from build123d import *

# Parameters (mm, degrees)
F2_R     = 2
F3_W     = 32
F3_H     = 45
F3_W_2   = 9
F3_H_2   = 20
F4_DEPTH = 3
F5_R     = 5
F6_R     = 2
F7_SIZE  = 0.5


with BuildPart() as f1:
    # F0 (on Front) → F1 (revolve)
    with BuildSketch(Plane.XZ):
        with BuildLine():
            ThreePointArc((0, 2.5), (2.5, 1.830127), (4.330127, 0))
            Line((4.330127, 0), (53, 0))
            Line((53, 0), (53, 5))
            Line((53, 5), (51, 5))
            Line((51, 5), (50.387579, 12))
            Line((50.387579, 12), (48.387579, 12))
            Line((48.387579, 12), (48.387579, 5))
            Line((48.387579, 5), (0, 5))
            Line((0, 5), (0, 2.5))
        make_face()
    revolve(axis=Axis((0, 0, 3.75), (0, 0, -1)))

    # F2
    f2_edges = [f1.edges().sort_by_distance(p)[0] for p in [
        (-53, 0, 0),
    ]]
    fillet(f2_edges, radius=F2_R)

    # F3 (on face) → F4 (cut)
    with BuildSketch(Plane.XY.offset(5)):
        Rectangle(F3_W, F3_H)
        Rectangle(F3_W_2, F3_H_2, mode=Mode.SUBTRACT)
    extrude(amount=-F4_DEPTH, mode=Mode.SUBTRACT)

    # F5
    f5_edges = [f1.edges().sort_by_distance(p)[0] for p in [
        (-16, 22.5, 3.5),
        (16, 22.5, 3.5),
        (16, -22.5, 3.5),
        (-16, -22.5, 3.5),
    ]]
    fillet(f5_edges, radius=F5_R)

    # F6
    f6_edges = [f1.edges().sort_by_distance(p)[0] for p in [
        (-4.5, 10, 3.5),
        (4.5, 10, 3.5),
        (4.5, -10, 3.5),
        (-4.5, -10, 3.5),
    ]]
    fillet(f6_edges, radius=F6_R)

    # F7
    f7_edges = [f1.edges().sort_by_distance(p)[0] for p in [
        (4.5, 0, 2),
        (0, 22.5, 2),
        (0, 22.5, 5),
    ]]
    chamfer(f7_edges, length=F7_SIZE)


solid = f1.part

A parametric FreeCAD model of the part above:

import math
import FreeCAD as App
import Part
import Sketcher
Q = App.Units.Quantity


def edges_at(feature, points):
    """Names of the edges that pass closest to the given points."""
    edges = feature.Shape.Edges
    near = lambda p: min(range(len(edges)), key=lambda i: edges[i].distToShape(Part.Vertex(*p))[0])
    return sorted({f"Edge{near(p) + 1}" for p in points})

doc = App.newDocument("Part")
params = doc.addObject("Spreadsheet::Sheet", "Params")
for row, (alias, value) in enumerate([
    ("sketch1_radius", "5 mm"),
    ("sketch1_width", "2 mm"),
    ("sketch1_height", "5 mm"),
    ("sketch1_height2", "7 mm"),
    ("sketch1_height3", "2.5 mm"),
    ("revolution_angle", "360 deg"),
    ("fillet_radius", "2 mm"),
    ("sketch2_width", "32 mm"),
    ("sketch2_width2", "9 mm"),
    ("sketch2_height", "45 mm"),
    ("sketch2_height2", "20 mm"),
    ("pocket1_length", "3 mm"),
    ("fillet2_radius", "5 mm"),
    ("fillet3_radius", "2 mm"),
    ("chamfer_size", "0.5 mm"),
], start=1):
    params.set(f"A{row}", alias)
    params.set(f"B{row}", "=" + value)
    params.setAlias(f"B{row}", alias)

body = doc.addObject("PartDesign::Body", "Body")

# Sketch on XZ plane
sketch1 = body.newObject("Sketcher::SketchObject", "Sketch")
sketch1.AttachmentSupport = (doc.getObject("XZ_Plane"), [""])
sketch1.MapMode = "FlatFace"
sketch1.addGeometry([
    Part.ArcOfCircle(Part.Circle(App.Vector(0, -2.5, 0), App.Vector(0, 0, 1), 5), math.radians(30), math.radians(89.999999)),  # 0
    Part.LineSegment(App.Vector(4.330127, 0, 0), App.Vector(53, 0, 0)),  # 1
    Part.LineSegment(App.Vector(53, 0, 0), App.Vector(53, 5, 0)),  # 2
    Part.LineSegment(App.Vector(53, 5, 0), App.Vector(51, 5, 0)),  # 3
    Part.LineSegment(App.Vector(51, 5, 0), App.Vector(50.387579, 12, 0)),  # 4
    Part.LineSegment(App.Vector(50.387579, 12, 0), App.Vector(48.387579, 12, 0)),  # 5
    Part.LineSegment(App.Vector(48.387579, 12, 0), App.Vector(48.387579, 5, 0)),  # 6
    Part.LineSegment(App.Vector(48.387579, 5, 0), App.Vector(0, 5, 0)),  # 7
    Part.LineSegment(App.Vector(0, 5, 0), App.Vector(0, 2.5, 0)),  # 8
], False)
sketch1.addConstraint([
    Sketcher.Constraint("Coincident", 0, 1, 1, 1),
    Sketcher.Constraint("Coincident", 1, 2, 2, 1),
    Sketcher.Constraint("Coincident", 2, 2, 3, 1),
    Sketcher.Constraint("Coincident", 3, 2, 4, 1),
    Sketcher.Constraint("Coincident", 4, 2, 5, 1),
    Sketcher.Constraint("Coincident", 5, 2, 6, 1),
    Sketcher.Constraint("Coincident", 6, 2, 7, 1),
    Sketcher.Constraint("Coincident", 7, 2, 8, 1),
    Sketcher.Constraint("Coincident", 8, 2, 0, 2),
    Sketcher.Constraint("Horizontal", 1),
    Sketcher.Constraint("Vertical", 2),
    Sketcher.Constraint("Horizontal", 3),
    Sketcher.Constraint("Horizontal", 5),
    Sketcher.Constraint("Vertical", 6),
    Sketcher.Constraint("Horizontal", 7),
    Sketcher.Constraint("Vertical", 8),
    Sketcher.Constraint("PointOnObject", 0, 3, -2),
    Sketcher.Constraint("PointOnObject", 0, 1, -1),
    Sketcher.Constraint("PointOnObject", 7, 2, -2),
    Sketcher.Constraint("Horizontal", 3, 2, 6, 2),
    Sketcher.Constraint("Equal", 3, 5),
    Sketcher.Constraint("Radius", 0, 5.0),
    Sketcher.Constraint("DistanceX", 3, 2, 3, 1, 2.0),
    Sketcher.Constraint("DistanceY", 2, 1, 2, 2, 5.0),
    Sketcher.Constraint("DistanceY", 6, 2, 6, 1, 7.0),
    Sketcher.Constraint("Angle", 4, Q("95.000003 deg")),
    Sketcher.Constraint("DistanceY", 8, 2, 8, 1, 2.5),
    Sketcher.Constraint("DistanceX", -1, 1, 1, 2, 53.0),
])
sketch1.setExpression("Constraints[21]", "Params.sketch1_radius")
sketch1.setExpression("Constraints[22]", "Params.sketch1_width")
sketch1.setExpression("Constraints[23]", "Params.sketch1_height")
sketch1.setExpression("Constraints[24]", "Params.sketch1_height2")
sketch1.setExpression("Constraints[26]", "Params.sketch1_height3")
revolution = body.newObject("PartDesign::Revolution", "Revolution")
revolution.Profile = sketch1
revolution.ReferenceAxis = (sketch1, ["V_Axis"])
revolution.setExpression("Angle", "Params.revolution_angle")
doc.recompute()

fillet = body.newObject("PartDesign::Fillet", "Fillet")
fillet.Base = (revolution, edges_at(revolution, [(-53, 0, 0)]))
fillet.setExpression("Radius", "Params.fillet_radius")

# Sketch on XY plane
sketch2 = body.newObject("Sketcher::SketchObject", "Sketch001")
sketch2.AttachmentSupport = (doc.getObject("XY_Plane"), [""])
sketch2.MapMode = "FlatFace"
sketch2.AttachmentOffset = App.Placement(App.Vector(0, 0, 5), App.Rotation())
sketch2.addGeometry([
    Part.LineSegment(App.Vector(-16, 22.5, 0), App.Vector(-16, -22.5, 0)),  # 0
    Part.LineSegment(App.Vector(-16, -22.5, 0), App.Vector(16, -22.5, 0)),  # 1
    Part.LineSegment(App.Vector(16, -22.5, 0), App.Vector(16, 22.5, 0)),  # 2
    Part.LineSegment(App.Vector(16, 22.5, 0), App.Vector(-16, 22.5, 0)),  # 3
    Part.LineSegment(App.Vector(4.5, -10, 0), App.Vector(-4.5, -10, 0)),  # 4
    Part.LineSegment(App.Vector(-4.5, -10, 0), App.Vector(-4.5, 10, 0)),  # 5
    Part.LineSegment(App.Vector(-4.5, 10, 0), App.Vector(4.5, 10, 0)),  # 6
    Part.LineSegment(App.Vector(4.5, 10, 0), App.Vector(4.5, -10, 0)),  # 7
], False)
sketch2.addConstraint([
    Sketcher.Constraint("Coincident", 0, 2, 1, 1),
    Sketcher.Constraint("Coincident", 1, 2, 2, 1),
    Sketcher.Constraint("Coincident", 2, 2, 3, 1),
    Sketcher.Constraint("Coincident", 3, 2, 0, 1),
    Sketcher.Constraint("Coincident", 4, 2, 5, 1),
    Sketcher.Constraint("Coincident", 5, 2, 6, 1),
    Sketcher.Constraint("Coincident", 6, 2, 7, 1),
    Sketcher.Constraint("Coincident", 7, 2, 4, 1),
    Sketcher.Constraint("Vertical", 0),
    Sketcher.Constraint("Horizontal", 1),
    Sketcher.Constraint("Vertical", 2),
    Sketcher.Constraint("Horizontal", 3),
    Sketcher.Constraint("Horizontal", 4),
    Sketcher.Constraint("Vertical", 5),
    Sketcher.Constraint("Horizontal", 6),
    Sketcher.Constraint("Vertical", 7),
    Sketcher.Constraint("Symmetric", 0, 2, 2, 2, -1, 1),
    Sketcher.Constraint("Symmetric", 4, 2, 6, 2, -1, 1),
    Sketcher.Constraint("DistanceX", 1, 1, 1, 2, 32.0),
    Sketcher.Constraint("DistanceX", 4, 2, 4, 1, 9.0),
    Sketcher.Constraint("DistanceY", 0, 2, 0, 1, 45.0),
    Sketcher.Constraint("DistanceY", 5, 1, 5, 2, 20.0),
])
sketch2.setExpression("Constraints[18]", "Params.sketch2_width")
sketch2.setExpression("Constraints[19]", "Params.sketch2_width2")
sketch2.setExpression("Constraints[20]", "Params.sketch2_height")
sketch2.setExpression("Constraints[21]", "Params.sketch2_height2")
pocket1 = body.newObject("PartDesign::Pocket", "Pocket")
pocket1.Profile = sketch2
pocket1.setExpression("Length", "Params.pocket1_length")
doc.recompute()

fillet2 = body.newObject("PartDesign::Fillet", "Fillet001")
fillet2.Base = (pocket1, edges_at(pocket1, [
    (-16, 22.5, 3.5),
    (16, 22.5, 3.5),
    (16, -22.5, 3.5),
    (-16, -22.5, 3.5),
]))
fillet2.setExpression("Radius", "Params.fillet2_radius")
doc.recompute()

fillet3 = body.newObject("PartDesign::Fillet", "Fillet002")
fillet3.Base = (fillet2, edges_at(fillet2, [
    (-4.5, 10, 3.5),
    (4.5, 10, 3.5),
    (4.5, -10, 3.5),
    (-4.5, -10, 3.5),
]))
fillet3.setExpression("Radius", "Params.fillet3_radius")
doc.recompute()

chamfer = body.newObject("PartDesign::Chamfer", "Chamfer")
chamfer.Base = (fillet3, edges_at(fillet3, [(4.5, 0, 2), (0, 22.5, 2), (0, 22.5, 5)]))
chamfer.setExpression("Size", "Params.chamfer_size")

doc.recompute()
